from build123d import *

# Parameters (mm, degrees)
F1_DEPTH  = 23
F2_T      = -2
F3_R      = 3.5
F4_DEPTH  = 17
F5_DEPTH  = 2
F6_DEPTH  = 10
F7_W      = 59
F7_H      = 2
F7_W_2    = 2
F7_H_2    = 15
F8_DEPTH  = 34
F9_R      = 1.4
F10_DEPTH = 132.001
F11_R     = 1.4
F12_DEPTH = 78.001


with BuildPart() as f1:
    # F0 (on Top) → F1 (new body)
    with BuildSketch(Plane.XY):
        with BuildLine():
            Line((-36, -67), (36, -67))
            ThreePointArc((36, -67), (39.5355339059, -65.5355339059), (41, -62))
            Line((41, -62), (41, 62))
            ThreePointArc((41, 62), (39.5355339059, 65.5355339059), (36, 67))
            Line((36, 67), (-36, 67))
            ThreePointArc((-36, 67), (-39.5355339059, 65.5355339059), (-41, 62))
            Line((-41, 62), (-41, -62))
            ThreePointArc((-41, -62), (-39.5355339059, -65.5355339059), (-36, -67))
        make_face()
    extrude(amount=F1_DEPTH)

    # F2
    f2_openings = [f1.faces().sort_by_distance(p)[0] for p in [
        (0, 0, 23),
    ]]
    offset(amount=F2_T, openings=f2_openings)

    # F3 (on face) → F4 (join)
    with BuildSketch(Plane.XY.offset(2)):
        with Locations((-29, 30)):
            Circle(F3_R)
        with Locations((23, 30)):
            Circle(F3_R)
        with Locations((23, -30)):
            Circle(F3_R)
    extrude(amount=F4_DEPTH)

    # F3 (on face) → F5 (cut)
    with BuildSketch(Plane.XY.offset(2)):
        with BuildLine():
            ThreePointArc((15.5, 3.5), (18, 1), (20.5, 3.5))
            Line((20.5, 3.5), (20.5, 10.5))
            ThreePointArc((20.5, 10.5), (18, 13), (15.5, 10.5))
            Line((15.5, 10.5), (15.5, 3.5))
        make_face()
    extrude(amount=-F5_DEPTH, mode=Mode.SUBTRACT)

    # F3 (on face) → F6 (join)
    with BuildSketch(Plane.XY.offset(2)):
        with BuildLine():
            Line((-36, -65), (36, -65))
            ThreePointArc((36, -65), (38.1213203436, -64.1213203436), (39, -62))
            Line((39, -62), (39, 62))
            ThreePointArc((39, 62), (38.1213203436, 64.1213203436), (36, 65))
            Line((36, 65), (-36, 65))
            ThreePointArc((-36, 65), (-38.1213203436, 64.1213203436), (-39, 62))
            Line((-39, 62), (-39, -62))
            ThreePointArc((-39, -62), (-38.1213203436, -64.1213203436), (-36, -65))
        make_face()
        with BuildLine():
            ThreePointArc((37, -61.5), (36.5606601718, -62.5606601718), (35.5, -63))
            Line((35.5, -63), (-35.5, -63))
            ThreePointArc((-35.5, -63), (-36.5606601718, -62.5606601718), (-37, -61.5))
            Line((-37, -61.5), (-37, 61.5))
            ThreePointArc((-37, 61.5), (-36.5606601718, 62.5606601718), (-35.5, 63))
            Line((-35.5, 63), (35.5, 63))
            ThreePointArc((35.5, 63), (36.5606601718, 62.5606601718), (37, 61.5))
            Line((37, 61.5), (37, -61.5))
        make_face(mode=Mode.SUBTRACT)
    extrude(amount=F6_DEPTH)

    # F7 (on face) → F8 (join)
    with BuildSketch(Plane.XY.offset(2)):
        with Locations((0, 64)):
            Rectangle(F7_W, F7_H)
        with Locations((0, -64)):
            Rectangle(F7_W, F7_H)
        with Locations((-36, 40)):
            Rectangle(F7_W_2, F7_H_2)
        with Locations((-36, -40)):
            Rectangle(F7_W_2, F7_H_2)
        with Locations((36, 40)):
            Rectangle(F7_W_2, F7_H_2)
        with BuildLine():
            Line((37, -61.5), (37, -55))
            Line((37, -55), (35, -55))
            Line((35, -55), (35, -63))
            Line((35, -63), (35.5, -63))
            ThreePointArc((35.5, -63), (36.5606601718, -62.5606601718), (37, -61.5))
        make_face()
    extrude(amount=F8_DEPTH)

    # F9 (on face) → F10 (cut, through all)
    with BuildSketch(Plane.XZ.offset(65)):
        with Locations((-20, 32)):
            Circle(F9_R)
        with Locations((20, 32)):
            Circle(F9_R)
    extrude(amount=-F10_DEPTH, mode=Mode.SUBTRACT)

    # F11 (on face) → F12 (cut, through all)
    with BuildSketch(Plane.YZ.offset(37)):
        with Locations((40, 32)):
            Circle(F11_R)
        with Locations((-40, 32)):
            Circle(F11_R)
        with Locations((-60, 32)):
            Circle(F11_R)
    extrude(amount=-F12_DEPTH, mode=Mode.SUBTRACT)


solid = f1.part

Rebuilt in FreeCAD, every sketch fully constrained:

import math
import FreeCAD as App
import Part
import Sketcher

V = App.Vector


def faces_at(feature, points):
    """Names of the faces that lie closest to the given points."""
    faces = feature.Shape.Faces
    near = lambda p: min(range(len(faces)), key=lambda i: faces[i].distToShape(Part.Vertex(*p))[0])
    return sorted({f"Face{near(p) + 1}" for p in points})

doc = App.newDocument("Part")
body = doc.addObject("PartDesign::Body", "Body")

# Sketch on XY plane
sketch1 = body.newObject("Sketcher::SketchObject", "Sketch")
sketch1.AttachmentSupport = (doc.getObject("XY_Plane"), [""])
sketch1.MapMode = "FlatFace"
sketch1.addGeometry(Part.LineSegment(V(-36, -67, 0), V(36, -67, 0)), False)
sketch1.addGeometry(Part.ArcOfCircle(Part.Circle(V(36, -62, 0), V(0, 0, 1), 5), math.radians(-90), math.radians(0)), False)
sketch1.addGeometry(Part.LineSegment(V(41, -62, 0), V(41, 62, 0)), False)
sketch1.addGeometry(Part.ArcOfCircle(Part.Circle(V(36, 62, 0), V(0, 0, 1), 5), math.radians(0), math.radians(90)), False)
sketch1.addGeometry(Part.LineSegment(V(36, 67, 0), V(-36, 67, 0)), False)
sketch1.addGeometry(Part.ArcOfCircle(Part.Circle(V(-36, 62, 0), V(0, 0, 1), 5), math.radians(90), math.radians(180)), False)
sketch1.addGeometry(Part.LineSegment(V(-41, 62, 0), V(-41, -62, 0)), False)
sketch1.addGeometry(Part.ArcOfCircle(Part.Circle(V(-36, -62, 0), V(0, 0, 1), 5), math.radians(180), math.radians(270)), False)
sketch1.addConstraint(Sketcher.Constraint("Tangent", 0, 2, 1, 1))
sketch1.addConstraint(Sketcher.Constraint("Tangent", 1, 2, 2, 1))
sketch1.addConstraint(Sketcher.Constraint("Tangent", 2, 2, 3, 1))
sketch1.addConstraint(Sketcher.Constraint("Tangent", 3, 2, 4, 1))
sketch1.addConstraint(Sketcher.Constraint("Tangent", 4, 2, 5, 1))
sketch1.addConstraint(Sketcher.Constraint("Tangent", 5, 2, 6, 1))
sketch1.addConstraint(Sketcher.Constraint("Tangent", 6, 2, 7, 1))
sketch1.addConstraint(Sketcher.Constraint("Tangent", 7, 2, 0, 1))
sketch1.addConstraint(Sketcher.Constraint("Horizontal", 0))
sketch1.addConstraint(Sketcher.Constraint("Vertical", 2))
sketch1.addConstraint(Sketcher.Constraint("Horizontal", 4))
sketch1.addConstraint(Sketcher.Constraint("Vertical", 6))
sketch1.addConstraint(Sketcher.Constraint("Equal", 1, 3))
sketch1.addConstraint(Sketcher.Constraint("Equal", 3, 5))
sketch1.addConstraint(Sketcher.Constraint("Equal", 5, 7))
sketch1.addConstraint(Sketcher.Constraint("Symmetric", 1, 3, 5, 3, -1, 1))
sketch1.addConstraint(Sketcher.Constraint("Radius", 1, 5.0))
sketch1.addConstraint(Sketcher.Constraint("DistanceX", 0, 1, 0, 2, 72.0))
sketch1.addConstraint(Sketcher.Constraint("DistanceY", 2, 1, 2, 2, 124.0))
pad1 = body.newObject("PartDesign::Pad", "Pad")
pad1.Profile = sketch1
pad1.Length = 23
doc.recompute()

thickness = body.newObject("PartDesign::Thickness", "Thickness")
thickness.Base = (pad1, faces_at(pad1, [(0, 0, 23)]))
thickness.Value = 2
thickness.Reversed = True
thickness.Join = "Arc"

# Sketch on XY plane
sketch2 = body.newObject("Sketcher::SketchObject", "Sketch001")
sketch2.AttachmentSupport = (doc.getObject("XY_Plane"), [""])
sketch2.MapMode = "FlatFace"
sketch2.AttachmentOffset = App.Placement(V(0, 0, 2), App.Rotation())
sketch2.addGeometry(Part.Circle(V(-29, 30, 0), V(0, 0, 1), 3.5), False)
sketch2.addGeometry(Part.Circle(V(23, 30, 0), V(0, 0, 1), 3.5), False)
sketch2.addGeometry(Part.Circle(V(23, -30, 0), V(0, 0, 1), 3.5), False)
sketch2.addConstraint(Sketcher.Constraint("Equal", 0, 1))
sketch2.addConstraint(Sketcher.Constraint("Equal", 1, 2))
sketch2.addConstraint(Sketcher.Constraint("Symmetric", 1, 3, 2, 3, -1))
sketch2.addConstraint(Sketcher.Constraint("Horizontal", 0, 3, 1, 3))
sketch2.addConstraint(Sketcher.Constraint("Diameter", 0, 7.0))
sketch2.addConstraint(Sketcher.Constraint("DistanceX", 0, 3, -1, 1, 29.0))
sketch2.addConstraint(Sketcher.Constraint("DistanceY", -1, 1, 0, 3, 30.0))
sketch2.addConstraint(Sketcher.Constraint("DistanceX", -1, 1, 1, 3, 23.0))
pad2 = body.newObject("PartDesign::Pad", "Pad001")
pad2.Profile = sketch2
pad2.Length = 17

# Sketch on XY plane
sketch3 = body.newObject("Sketcher::SketchObject", "Sketch002")
sketch3.AttachmentSupport = (doc.getObject("XY_Plane"), [""])
sketch3.MapMode = "FlatFace"
sketch3.AttachmentOffset = App.Placement(V(0, 0, 2), App.Rotation())
sketch3.addGeometry(Part.ArcOfCircle(Part.Circle(V(18, 3.5, 0), V(0, 0, 1), 2.5), math.radians(180), math.radians(360)), False)
sketch3.addGeometry(Part.LineSegment(V(20.5, 3.5, 0), V(20.5, 10.5, 0)), False)
sketch3.addGeometry(Part.ArcOfCircle(Part.Circle(V(18, 10.5, 0), V(0, 0, 1), 2.5), math.radians(0), math.radians(180)), False)
sketch3.addGeometry(Part.LineSegment(V(15.5, 10.5, 0), V(15.5, 3.5, 0)), False)
sketch3.addConstraint(Sketcher.Constraint("Tangent", 0, 2, 1, 1))
sketch3.addConstraint(Sketcher.Constraint("Tangent", 1, 2, 2, 1))
sketch3.addConstraint(Sketcher.Constraint("Tangent", 2, 2, 3, 1))
sketch3.addConstraint(Sketcher.Constraint("Tangent", 3, 2, 0, 1))
sketch3.addConstraint(Sketcher.Constraint("Vertical", 1))
sketch3.addConstraint(Sketcher.Constraint("Vertical", 3))
sketch3.addConstraint(Sketcher.Constraint("Radius", 0, 2.5))
sketch3.addConstraint(Sketcher.Constraint("DistanceY", 1, 1, 1, 2, 7.0))
sketch3.addConstraint(Sketcher.Constraint("DistanceX", -1, 1, 0, 3, 18.0))
sketch3.addConstraint(Sketcher.Constraint("DistanceY", -1, 1, 0, 3, 3.5))
pocket1 = body.newObject("PartDesign::Pocket", "Pocket")
pocket1.Profile = sketch3
pocket1.Length = 2

# Sketch on XY plane
sketch4 = body.newObject("Sketcher::SketchObject", "Sketch003")
sketch4.AttachmentSupport = (doc.getObject("XY_Plane"), [""])
sketch4.MapMode = "FlatFace"
sketch4.AttachmentOffset = App.Placement(V(0, 0, 2), App.Rotation())
sketch4.addGeometry(Part.LineSegment(V(-36, -65, 0), V(36, -65, 0)), False)
sketch4.addGeometry(Part.ArcOfCircle(Part.Circle(V(36, -62, 0), V(0, 0, 1), 3), math.radians(-90), math.radians(0)), False)
sketch4.addGeometry(Part.LineSegment(V(39, -62, 0), V(39, 62, 0)), False)
sketch4.addGeometry(Part.ArcOfCircle(Part.Circle(V(36, 62, 0), V(0, 0, 1), 3), math.radians(0), math.radians(90)), False)
sketch4.addGeometry(Part.LineSegment(V(36, 65, 0), V(-36, 65, 0)), False)
sketch4.addGeometry(Part.ArcOfCircle(Part.Circle(V(-36, 62, 0), V(0, 0, 1), 3), math.radians(90), math.radians(180)), False)
sketch4.addGeometry(Part.LineSegment(V(-39, 62, 0), V(-39, -62, 0)), False)
sketch4.addGeometry(Part.ArcOfCircle(Part.Circle(V(-36, -62, 0), V(0, 0, 1), 3), math.radians(180), math.radians(270)), False)
sketch4.addGeometry(Part.LineSegment(V(37, 61.5, 0), V(37, -61.5, 0)), False)
sketch4.addGeometry(Part.ArcOfCircle(Part.Circle(V(35.5, -61.5, 0), V(0, 0, 1), 1.5), math.radians(-90), math.radians(0)), False)
sketch4.addGeometry(Part.LineSegment(V(35.5, -63, 0), V(-35.5, -63, 0)), False)
sketch4.addGeometry(Part.ArcOfCircle(Part.Circle(V(-35.5, -61.5, 0), V(0, 0, 1), 1.5), math.radians(180), math.radians(270)), False)
sketch4.addGeometry(Part.LineSegment(V(-37, -61.5, 0), V(-37, 61.5, 0)), False)
sketch4.addGeometry(Part.ArcOfCircle(Part.Circle(V(-35.5, 61.5, 0), V(0, 0, 1), 1.5), math.radians(90), math.radians(180)), False)
sketch4.addGeometry(Part.LineSegment(V(-35.5, 63, 0), V(35.5, 63, 0)), False)
sketch4.addGeometry(Part.ArcOfCircle(Part.Circle(V(35.5, 61.5, 0), V(0, 0, 1), 1.5), math.radians(0), math.radians(90)), False)
sketch4.addConstraint(Sketcher.Constraint("Tangent", 0, 2, 1, 1))
sketch4.addConstraint(Sketcher.Constraint("Tangent", 1, 2, 2, 1))
sketch4.addConstraint(Sketcher.Constraint("Tangent", 2, 2, 3, 1))
sketch4.addConstraint(Sketcher.Constraint("Tangent", 3, 2, 4, 1))
sketch4.addConstraint(Sketcher.Constraint("Tangent", 4, 2, 5, 1))
sketch4.addConstraint(Sketcher.Constraint("Tangent", 5, 2, 6, 1))
sketch4.addConstraint(Sketcher.Constraint("Tangent", 6, 2, 7, 1))
sketch4.addConstraint(Sketcher.Constraint("Tangent", 7, 2, 0, 1))
sketch4.addConstraint(Sketcher.Constraint("Tangent", 8, 2, 9, 2))
sketch4.addConstraint(Sketcher.Constraint("Tangent", 9, 1, 10, 1))
sketch4.addConstraint(Sketcher.Constraint("Tangent", 10, 2, 11, 2))
sketch4.addConstraint(Sketcher.Constraint("Tangent", 11, 1, 12, 1))
sketch4.addConstraint(Sketcher.Constraint("Tangent", 12, 2, 13, 2))
sketch4.addConstraint(Sketcher.Constraint("Tangent", 13, 1, 14, 1))
sketch4.addConstraint(Sketcher.Constraint("Tangent", 14, 2, 15, 2))
sketch4.addConstraint(Sketcher.Constraint("Tangent", 15, 1, 8, 1))
sketch4.addConstraint(Sketcher.Constraint("Horizontal", 0))
sketch4.addConstraint(Sketcher.Constraint("Vertical", 2))
sketch4.addConstraint(Sketcher.Constraint("Horizontal", 4))
sketch4.addConstraint(Sketcher.Constraint("Vertical", 6))
sketch4.addConstraint(Sketcher.Constraint("Vertical", 8))
sketch4.addConstraint(Sketcher.Constraint("Horizontal", 10))
sketch4.addConstraint(Sketcher.Constraint("Vertical", 12))
sketch4.addConstraint(Sketcher.Constraint("Horizontal", 14))
sketch4.addConstraint(Sketcher.Constraint("Equal", 1, 3))
sketch4.addConstraint(Sketcher.Constraint("Equal", 3, 5))
sketch4.addConstraint(Sketcher.Constraint("Equal", 5, 7))
sketch4.addConstraint(Sketcher.Constraint("Equal", 9, 11))
sketch4.addConstraint(Sketcher.Constraint("Equal", 11, 13))
sketch4.addConstraint(Sketcher.Constraint("Equal", 13, 15))
sketch4.addConstraint(Sketcher.Constraint("Symmetric", 1, 3, 5, 3, -1, 1))
sketch4.addConstraint(Sketcher.Constraint("Symmetric", 9, 3, 13, 3, -1, 1))
sketch4.addConstraint(Sketcher.Constraint("Radius", 1, 3.0))
sketch4.addConstraint(Sketcher.Constraint("Radius", 9, 1.5))
sketch4.addConstraint(Sketcher.Constraint("DistanceX", 0, 1, 0, 2, 72.0))
sketch4.addConstraint(Sketcher.Constraint("DistanceX", 10, 2, 10, 1, 71.0))
sketch4.addConstraint(Sketcher.Constraint("DistanceY", 2, 1, 2, 2, 124.0))
sketch4.addConstraint(Sketcher.Constraint("DistanceY", 8, 2, 8, 1, 123.0))
pad3 = body.newObject("PartDesign::Pad", "Pad002")
pad3.Profile = sketch4
pad3.Length = 10

# Sketch on XY plane
sketch5 = body.newObject("Sketcher::SketchObject", "Sketch004")
sketch5.AttachmentSupport = (doc.getObject("XY_Plane"), [""])
sketch5.MapMode = "FlatFace"
sketch5.AttachmentOffset = App.Placement(V(0, 0, 2), App.Rotation())
sketch5.addGeometry(Part.LineSegment(V(-29.5, 65, 0), V(-29.5, 63, 0)), False)
sketch5.addGeometry(Part.LineSegment(V(-29.5, 63, 0), V(29.5, 63, 0)), False)
sketch5.addGeometry(Part.LineSegment(V(29.5, 63, 0), V(29.5, 65, 0)), False)
sketch5.addGeometry(Part.LineSegment(V(29.5, 65, 0), V(-29.5, 65, 0)), False)
sketch5.addGeometry(Part.LineSegment(V(-29.5, -63, 0), V(-29.5, -65, 0)), False)
sketch5.addGeometry(Part.LineSegment(V(-29.5, -65, 0), V(29.5, -65, 0)), False)
sketch5.addGeometry(Part.LineSegment(V(29.5, -65, 0), V(29.5, -63, 0)), False)
sketch5.addGeometry(Part.LineSegment(V(29.5, -63, 0), V(-29.5, -63, 0)), False)
sketch5.addGeometry(Part.LineSegment(V(-37, 47.5, 0), V(-37, 32.5, 0)), False)
sketch5.addGeometry(Part.LineSegment(V(-37, 32.5, 0), V(-35, 32.5, 0)), False)
sketch5.addGeometry(Part.LineSegment(V(-35, 32.5, 0), V(-35, 47.5, 0)), False)
sketch5.addGeometry(Part.LineSegment(V(-35, 47.5, 0), V(-37, 47.5, 0)), False)
sketch5.addGeometry(Part.LineSegment(V(-37, -32.5, 0), V(-37, -47.5, 0)), False)
sketch5.addGeometry(Part.LineSegment(V(-37, -47.5, 0), V(-35, -47.5, 0)), False)
sketch5.addGeometry(Part.LineSegment(V(-35, -47.5, 0), V(-35, -32.5, 0)), False)
sketch5.addGeometry(Part.LineSegment(V(-35, -32.5, 0), V(-37, -32.5, 0)), False)
sketch5.addGeometry(Part.LineSegment(V(35, 47.5, 0), V(35, 32.5, 0)), False)
sketch5.addGeometry(Part.LineSegment(V(35, 32.5, 0), V(37, 32.5, 0)), False)
sketch5.addGeometry(Part.LineSegment(V(37, 32.5, 0), V(37, 47.5, 0)), False)
sketch5.addGeometry(Part.LineSegment(V(37, 47.5, 0), V(35, 47.5, 0)), False)
sketch5.addGeometry(Part.LineSegment(V(37, -61.5, 0), V(37, -55, 0)), False)
sketch5.addGeometry(Part.LineSegment(V(37, -55, 0), V(35, -55, 0)), False)
sketch5.addGeometry(Part.LineSegment(V(35, -55, 0), V(35, -63, 0)), False)
sketch5.addGeometry(Part.LineSegment(V(35, -63, 0), V(35.5, -63, 0)), False)
sketch5.addGeometry(Part.ArcOfCircle(Part.Circle(V(35.5, -61.5, 0), V(0, 0, 1), 1.5), math.radians(-90), math.radians(0)), False)
sketch5.addConstraint(Sketcher.Constraint("Coincident", 0, 2, 1, 1))
sketch5.addConstraint(Sketcher.Constraint("Coincident", 1, 2, 2, 1))
sketch5.addConstraint(Sketcher.Constraint("Coincident", 2, 2, 3, 1))
sketch5.addConstraint(Sketcher.Constraint("Coincident", 3, 2, 0, 1))
sketch5.addConstraint(Sketcher.Constraint("Coincident", 4, 2, 5, 1))
sketch5.addConstraint(Sketcher.Constraint("Coincident", 5, 2, 6, 1))
sketch5.addConstraint(Sketcher.Constraint("Coincident", 6, 2, 7, 1))
sketch5.addConstraint(Sketcher.Constraint("Coincident", 7, 2, 4, 1))
sketch5.addConstraint(Sketcher.Constraint("Coincident", 8, 2, 9, 1))
sketch5.addConstraint(Sketcher.Constraint("Coincident", 9, 2, 10, 1))
sketch5.addConstraint(Sketcher.Constraint("Coincident", 10, 2, 11, 1))
sketch5.addConstraint(Sketcher.Constraint("Coincident", 11, 2, 8, 1))
sketch5.addConstraint(Sketcher.Constraint("Coincident", 12, 2, 13, 1))
sketch5.addConstraint(Sketcher.Constraint("Coincident", 13, 2, 14, 1))
sketch5.addConstraint(Sketcher.Constraint("Coincident", 14, 2, 15, 1))
sketch5.addConstraint(Sketcher.Constraint("Coincident", 15, 2, 12, 1))
sketch5.addConstraint(Sketcher.Constraint("Coincident", 16, 2, 17, 1))
sketch5.addConstraint(Sketcher.Constraint("Coincident", 17, 2, 18, 1))
sketch5.addConstraint(Sketcher.Constraint("Coincident", 18, 2, 19, 1))
sketch5.addConstraint(Sketcher.Constraint("Coincident", 19, 2, 16, 1))
sketch5.addConstraint(Sketcher.Constraint("Coincident", 20, 2, 21, 1))
sketch5.addConstraint(Sketcher.Constraint("Coincident", 21, 2, 22, 1))
sketch5.addConstraint(Sketcher.Constraint("Coincident", 22, 2, 23, 1))
sketch5.addConstraint(Sketcher.Constraint("Tangent", 23, 2, 24, 1))
sketch5.addConstraint(Sketcher.Constraint("Tangent", 24, 2, 20, 1))
sketch5.addConstraint(Sketcher.Constraint("Vertical", 0))
sketch5.addConstraint(Sketcher.Constraint("Horizontal", 1))
sketch5.addConstraint(Sketcher.Constraint("Vertical", 2))
sketch5.addConstraint(Sketcher.Constraint("Horizontal", 3))
sketch5.addConstraint(Sketcher.Constraint("Vertical", 4))
sketch5.addConstraint(Sketcher.Constraint("Horizontal", 5))
sketch5.addConstraint(Sketcher.Constraint("Vertical", 6))
sketch5.addConstraint(Sketcher.Constraint("Horizontal", 7))
sketch5.addConstraint(Sketcher.Constraint("Vertical", 8))
sketch5.addConstraint(Sketcher.Constraint("Horizontal", 9))
sketch5.addConstraint(Sketcher.Constraint("Vertical", 10))
sketch5.addConstraint(Sketcher.Constraint("Horizontal", 11))
sketch5.addConstraint(Sketcher.Constraint("Vertical", 12))
sketch5.addConstraint(Sketcher.Constraint("Horizontal", 13))
sketch5.addConstraint(Sketcher.Constraint("Vertical", 14))
sketch5.addConstraint(Sketcher.Constraint("Horizontal", 15))
sketch5.addConstraint(Sketcher.Constraint("Vertical", 16))
sketch5.addConstraint(Sketcher.Constraint("Horizontal", 17))
sketch5.addConstraint(Sketcher.Constraint("Vertical", 18))
sketch5.addConstraint(Sketcher.Constraint("Horizontal", 19))
sketch5.addConstraint(Sketcher.Constraint("Vertical", 20))
sketch5.addConstraint(Sketcher.Constraint("Horizontal", 21))
sketch5.addConstraint(Sketcher.Constraint("Vertical", 22))
sketch5.addConstraint(Sketcher.Constraint("Horizontal", 23))
sketch5.addConstraint(Sketcher.Constraint("Symmetric", 2, 2, 4, 2, -1, 1))
sketch5.addConstraint(Sketcher.Constraint("Symmetric", 0, 2, 6, 2, -1, 1))
sketch5.addConstraint(Sketcher.Constraint("Symmetric", 14, 2, 16, 2, -1, 1))
sketch5.addConstraint(Sketcher.Constraint("Symmetric", 12, 2, 18, 2, -1, 1))
sketch5.addConstraint(Sketcher.Constraint("Symmetric", 9, 2, 16, 2, -2))
sketch5.addConstraint(Sketcher.Constraint("Symmetric", 11, 2, 18, 2, -2))
sketch5.addConstraint(Sketcher.Constraint("Horizontal", 7, 2, 22, 2))
sketch5.addConstraint(Sketcher.Constraint("Vertical", 3, 2, 4, 2))
sketch5.addConstraint(Sketcher.Constraint("Vertical", 18, 2, 20, 2))
sketch5.addConstraint(Sketcher.Constraint("Vertical", 19, 2, 21, 2))
sketch5.addConstraint(Sketcher.Constraint("Equal", 21, 0))
sketch5.addConstraint(Sketcher.Constraint("Radius", 24, 1.5))
sketch5.addConstraint(Sketcher.Constraint("DistanceX", 1, 1, 1, 2, 59.0))
sketch5.addConstraint(Sketcher.Constraint("DistanceX", 9, 1, 9, 2, 2.0))
sketch5.addConstraint(Sketcher.Constraint("DistanceY", 8, 2, 8, 1, 15.0))
sketch5.addConstraint(Sketcher.Constraint("DistanceY", 22, 2, 22, 1, 8.0))
sketch5.addConstraint(Sketcher.Constraint("DistanceY", -1, 1, 0, 2, 63.0))
sketch5.addConstraint(Sketcher.Constraint("DistanceX", 8, 2, -1, 1, 37.0))
sketch5.addConstraint(Sketcher.Constraint("DistanceY", 24, 3, 12, 2, 14.0))
pad4 = body.newObject("PartDesign::Pad", "Pad003")
pad4.Profile = sketch5
pad4.Length = 34

# Sketch on XZ plane
sketch6 = body.newObject("Sketcher::SketchObject", "Sketch005")
sketch6.AttachmentSupport = (doc.getObject("XZ_Plane"), [""])
sketch6.MapMode = "FlatFace"
sketch6.AttachmentOffset = App.Placement(V(0, 0, 65), App.Rotation())
sketch6.addGeometry(Part.Circle(V(-20, 32, 0), V(0, 0, 1), 1.4), False)
sketch6.addGeometry(Part.Circle(V(20, 32, 0), V(0, 0, 1), 1.4), False)
sketch6.addConstraint(Sketcher.Constraint("Equal", 0, 1))
sketch6.addConstraint(Sketcher.Constraint("Symmetric", 0, 3, 1, 3, -2))
sketch6.addConstraint(Sketcher.Constraint("Diameter", 0, 2.8))
sketch6.addConstraint(Sketcher.Constraint("DistanceX", 0, 3, -1, 1, 20.0))
sketch6.addConstraint(Sketcher.Constraint("DistanceY", -1, 1, 0, 3, 32.0))
pocket2 = body.newObject("PartDesign::Pocket", "Pocket001")
pocket2.Profile = sketch6
pocket2.Type = "ThroughAll"

# Sketch on YZ plane
sketch7 = body.newObject("Sketcher::SketchObject", "Sketch006")
sketch7.AttachmentSupport = (doc.getObject("YZ_Plane"), [""])
sketch7.MapMode = "FlatFace"
sketch7.AttachmentOffset = App.Placement(V(0, 0, 37), App.Rotation())
sketch7.addGeometry(Part.Circle(V(40, 32, 0), V(0, 0, 1), 1.4), False)
sketch7.addGeometry(Part.Circle(V(-40, 32, 0), V(0, 0, 1), 1.4), False)
sketch7.addGeometry(Part.Circle(V(-60, 32, 0), V(0, 0, 1), 1.4), False)
sketch7.addConstraint(Sketcher.Constraint("Equal", 0, 1))
sketch7.addConstraint(Sketcher.Constraint("Equal", 1, 2))
sketch7.addConstraint(Sketcher.Constraint("Symmetric", 0, 3, 1, 3, -2))
sketch7.addConstraint(Sketcher.Constraint("Horizontal", 1, 3, 2, 3))
sketch7.addConstraint(Sketcher.Constraint("Diameter", 0, 2.8))
sketch7.addConstraint(Sketcher.Constraint("DistanceX", -1, 1, 0, 3, 40.0))
sketch7.addConstraint(Sketcher.Constraint("DistanceY", -1, 1, 0, 3, 32.0))
sketch7.addConstraint(Sketcher.Constraint("DistanceX", 2, 3, -1, 1, 60.0))
pocket3 = body.newObject("PartDesign::Pocket", "Pocket002")
pocket3.Profile = sketch7
pocket3.Type = "ThroughAll"

doc.recompute()
